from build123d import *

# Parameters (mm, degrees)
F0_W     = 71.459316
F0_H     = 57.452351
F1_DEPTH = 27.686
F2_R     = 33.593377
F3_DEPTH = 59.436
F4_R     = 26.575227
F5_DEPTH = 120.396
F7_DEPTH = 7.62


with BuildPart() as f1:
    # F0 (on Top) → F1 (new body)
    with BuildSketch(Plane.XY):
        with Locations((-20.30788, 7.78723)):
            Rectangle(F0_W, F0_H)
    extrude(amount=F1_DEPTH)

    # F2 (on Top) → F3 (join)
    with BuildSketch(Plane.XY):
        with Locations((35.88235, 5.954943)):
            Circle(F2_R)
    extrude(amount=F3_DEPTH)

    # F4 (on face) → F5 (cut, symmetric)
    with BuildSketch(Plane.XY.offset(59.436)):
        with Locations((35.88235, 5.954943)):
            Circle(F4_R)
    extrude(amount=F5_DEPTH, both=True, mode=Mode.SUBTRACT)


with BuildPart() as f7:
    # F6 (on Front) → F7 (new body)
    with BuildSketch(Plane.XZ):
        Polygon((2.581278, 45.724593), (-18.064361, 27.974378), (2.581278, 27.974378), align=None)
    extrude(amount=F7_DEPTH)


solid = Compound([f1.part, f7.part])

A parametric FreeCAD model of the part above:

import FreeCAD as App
import Part
import Sketcher

V = App.Vector
Q = App.Units.Quantity


def add_polygon(sketch, points):
    """Adds a closed chain of lines whose ends are joined by coincident constraints."""
    first, n = sketch.GeometryCount, len(points)
    for a, b in zip(points, points[1:] + points[:1]):
        sketch.addGeometry(Part.LineSegment(App.Vector(*a, 0), App.Vector(*b, 0)), False)
    for i in range(n):
        sketch.addConstraint(Sketcher.Constraint("Coincident", first + i, 2, first + (i + 1) % n, 1))

doc = App.newDocument("Part")
body = doc.addObject("PartDesign::Body", "Body")

sketch1 = body.newObject("Sketcher::SketchObject", "Sketch")
sketch1.AttachmentSupport = (doc.getObject("XY_Plane"), [""])
sketch1.MapMode = "FlatFace"
add_polygon(sketch1, [(-56.037538, 36.513405), (-56.037538, -20.938945), (15.421778, -20.938945), (15.421778, 36.513405)])
sketch1.addConstraint(Sketcher.Constraint("Vertical", 0))
sketch1.addConstraint(Sketcher.Constraint("Horizontal", 1))
sketch1.addConstraint(Sketcher.Constraint("Vertical", 2))
sketch1.addConstraint(Sketcher.Constraint("Horizontal", 3))
sketch1.addConstraint(Sketcher.Constraint("DistanceY", 0, 2, 0, 1, 57.452351))
sketch1.addConstraint(Sketcher.Constraint("DistanceX", 1, 1, 1, 2, 71.459316))
sketch1.addConstraint(Sketcher.Constraint("DistanceX", 0, 2, -1, 1, 56.037538))
sketch1.addConstraint(Sketcher.Constraint("DistanceY", 0, 2, -1, 1, 20.938945))
pad1 = body.newObject("PartDesign::Pad", "Pad")
pad1.Profile = sketch1
pad1.Length = Q("1.09 in")

sketch2 = body.newObject("Sketcher::SketchObject", "Sketch001")
sketch2.AttachmentSupport = (doc.getObject("XY_Plane"), [""])
sketch2.MapMode = "FlatFace"
sketch2.addGeometry(Part.Circle(V(35.88235, 5.954943, 0), V(0, 0, 1), 33.593377), False)
sketch2.addConstraint(Sketcher.Constraint("Diameter", 0, 67.186754))
sketch2.addConstraint(Sketcher.Constraint("DistanceX", -1, 1, 0, 3, 35.88235))
sketch2.addConstraint(Sketcher.Constraint("DistanceY", -1, 1, 0, 3, 5.954943))
pad2 = body.newObject("PartDesign::Pad", "Pad001")
pad2.Profile = sketch2
pad2.Length = Q("2.34 in")

sketch3 = body.newObject("Sketcher::SketchObject", "Sketch002")
sketch3.AttachmentSupport = (doc.getObject("XY_Plane"), [""])
sketch3.MapMode = "FlatFace"
sketch3.AttachmentOffset = App.Placement(V(0, 0, 2.34 * 25.4), App.Rotation())
sketch3.addGeometry(Part.Circle(V(35.88235, 5.954943, 0), V(0, 0, 1), 26.575227), False)
sketch3.addConstraint(Sketcher.Constraint("Diameter", 0, 53.150454))
sketch3.addConstraint(Sketcher.Constraint("DistanceX", -1, 1, 0, 3, 35.88235))
sketch3.addConstraint(Sketcher.Constraint("DistanceY", -1, 1, 0, 3, 5.954943))
pocket1 = body.newObject("PartDesign::Pocket", "Pocket")
pocket1.Profile = sketch3
pocket1.Length = Q("9.48 in")
pocket1.Midplane = True
body2 = doc.addObject("PartDesign::Body", "Body001")

sketch4 = body2.newObject("Sketcher::SketchObject", "Sketch003")
sketch4.AttachmentSupport = (doc.getObject("XZ_Plane001"), [""])
sketch4.MapMode = "FlatFace"
add_polygon(sketch4, [(2.581278, 45.724593), (-18.064361, 27.974378), (2.581278, 27.974378)])
sketch4.addConstraint(Sketcher.Constraint("Horizontal", 1))
sketch4.addConstraint(Sketcher.Constraint("Vertical", 2))
sketch4.addConstraint(Sketcher.Constraint("DistanceX", 1, 1, 1, 2, 20.645639))
sketch4.addConstraint(Sketcher.Constraint("DistanceY", 2, 1, 2, 2, 17.750215))
sketch4.addConstraint(Sketcher.Constraint("DistanceX", 0, 2, -1, 1, 18.064361))
sketch4.addConstraint(Sketcher.Constraint("DistanceY", -1, 1, 0, 2, 27.974378))
pad3 = body2.newObject("PartDesign::Pad", "Pad002")
pad3.Profile = sketch4
pad3.Length = Q("0.3 in")

doc.recompute()
